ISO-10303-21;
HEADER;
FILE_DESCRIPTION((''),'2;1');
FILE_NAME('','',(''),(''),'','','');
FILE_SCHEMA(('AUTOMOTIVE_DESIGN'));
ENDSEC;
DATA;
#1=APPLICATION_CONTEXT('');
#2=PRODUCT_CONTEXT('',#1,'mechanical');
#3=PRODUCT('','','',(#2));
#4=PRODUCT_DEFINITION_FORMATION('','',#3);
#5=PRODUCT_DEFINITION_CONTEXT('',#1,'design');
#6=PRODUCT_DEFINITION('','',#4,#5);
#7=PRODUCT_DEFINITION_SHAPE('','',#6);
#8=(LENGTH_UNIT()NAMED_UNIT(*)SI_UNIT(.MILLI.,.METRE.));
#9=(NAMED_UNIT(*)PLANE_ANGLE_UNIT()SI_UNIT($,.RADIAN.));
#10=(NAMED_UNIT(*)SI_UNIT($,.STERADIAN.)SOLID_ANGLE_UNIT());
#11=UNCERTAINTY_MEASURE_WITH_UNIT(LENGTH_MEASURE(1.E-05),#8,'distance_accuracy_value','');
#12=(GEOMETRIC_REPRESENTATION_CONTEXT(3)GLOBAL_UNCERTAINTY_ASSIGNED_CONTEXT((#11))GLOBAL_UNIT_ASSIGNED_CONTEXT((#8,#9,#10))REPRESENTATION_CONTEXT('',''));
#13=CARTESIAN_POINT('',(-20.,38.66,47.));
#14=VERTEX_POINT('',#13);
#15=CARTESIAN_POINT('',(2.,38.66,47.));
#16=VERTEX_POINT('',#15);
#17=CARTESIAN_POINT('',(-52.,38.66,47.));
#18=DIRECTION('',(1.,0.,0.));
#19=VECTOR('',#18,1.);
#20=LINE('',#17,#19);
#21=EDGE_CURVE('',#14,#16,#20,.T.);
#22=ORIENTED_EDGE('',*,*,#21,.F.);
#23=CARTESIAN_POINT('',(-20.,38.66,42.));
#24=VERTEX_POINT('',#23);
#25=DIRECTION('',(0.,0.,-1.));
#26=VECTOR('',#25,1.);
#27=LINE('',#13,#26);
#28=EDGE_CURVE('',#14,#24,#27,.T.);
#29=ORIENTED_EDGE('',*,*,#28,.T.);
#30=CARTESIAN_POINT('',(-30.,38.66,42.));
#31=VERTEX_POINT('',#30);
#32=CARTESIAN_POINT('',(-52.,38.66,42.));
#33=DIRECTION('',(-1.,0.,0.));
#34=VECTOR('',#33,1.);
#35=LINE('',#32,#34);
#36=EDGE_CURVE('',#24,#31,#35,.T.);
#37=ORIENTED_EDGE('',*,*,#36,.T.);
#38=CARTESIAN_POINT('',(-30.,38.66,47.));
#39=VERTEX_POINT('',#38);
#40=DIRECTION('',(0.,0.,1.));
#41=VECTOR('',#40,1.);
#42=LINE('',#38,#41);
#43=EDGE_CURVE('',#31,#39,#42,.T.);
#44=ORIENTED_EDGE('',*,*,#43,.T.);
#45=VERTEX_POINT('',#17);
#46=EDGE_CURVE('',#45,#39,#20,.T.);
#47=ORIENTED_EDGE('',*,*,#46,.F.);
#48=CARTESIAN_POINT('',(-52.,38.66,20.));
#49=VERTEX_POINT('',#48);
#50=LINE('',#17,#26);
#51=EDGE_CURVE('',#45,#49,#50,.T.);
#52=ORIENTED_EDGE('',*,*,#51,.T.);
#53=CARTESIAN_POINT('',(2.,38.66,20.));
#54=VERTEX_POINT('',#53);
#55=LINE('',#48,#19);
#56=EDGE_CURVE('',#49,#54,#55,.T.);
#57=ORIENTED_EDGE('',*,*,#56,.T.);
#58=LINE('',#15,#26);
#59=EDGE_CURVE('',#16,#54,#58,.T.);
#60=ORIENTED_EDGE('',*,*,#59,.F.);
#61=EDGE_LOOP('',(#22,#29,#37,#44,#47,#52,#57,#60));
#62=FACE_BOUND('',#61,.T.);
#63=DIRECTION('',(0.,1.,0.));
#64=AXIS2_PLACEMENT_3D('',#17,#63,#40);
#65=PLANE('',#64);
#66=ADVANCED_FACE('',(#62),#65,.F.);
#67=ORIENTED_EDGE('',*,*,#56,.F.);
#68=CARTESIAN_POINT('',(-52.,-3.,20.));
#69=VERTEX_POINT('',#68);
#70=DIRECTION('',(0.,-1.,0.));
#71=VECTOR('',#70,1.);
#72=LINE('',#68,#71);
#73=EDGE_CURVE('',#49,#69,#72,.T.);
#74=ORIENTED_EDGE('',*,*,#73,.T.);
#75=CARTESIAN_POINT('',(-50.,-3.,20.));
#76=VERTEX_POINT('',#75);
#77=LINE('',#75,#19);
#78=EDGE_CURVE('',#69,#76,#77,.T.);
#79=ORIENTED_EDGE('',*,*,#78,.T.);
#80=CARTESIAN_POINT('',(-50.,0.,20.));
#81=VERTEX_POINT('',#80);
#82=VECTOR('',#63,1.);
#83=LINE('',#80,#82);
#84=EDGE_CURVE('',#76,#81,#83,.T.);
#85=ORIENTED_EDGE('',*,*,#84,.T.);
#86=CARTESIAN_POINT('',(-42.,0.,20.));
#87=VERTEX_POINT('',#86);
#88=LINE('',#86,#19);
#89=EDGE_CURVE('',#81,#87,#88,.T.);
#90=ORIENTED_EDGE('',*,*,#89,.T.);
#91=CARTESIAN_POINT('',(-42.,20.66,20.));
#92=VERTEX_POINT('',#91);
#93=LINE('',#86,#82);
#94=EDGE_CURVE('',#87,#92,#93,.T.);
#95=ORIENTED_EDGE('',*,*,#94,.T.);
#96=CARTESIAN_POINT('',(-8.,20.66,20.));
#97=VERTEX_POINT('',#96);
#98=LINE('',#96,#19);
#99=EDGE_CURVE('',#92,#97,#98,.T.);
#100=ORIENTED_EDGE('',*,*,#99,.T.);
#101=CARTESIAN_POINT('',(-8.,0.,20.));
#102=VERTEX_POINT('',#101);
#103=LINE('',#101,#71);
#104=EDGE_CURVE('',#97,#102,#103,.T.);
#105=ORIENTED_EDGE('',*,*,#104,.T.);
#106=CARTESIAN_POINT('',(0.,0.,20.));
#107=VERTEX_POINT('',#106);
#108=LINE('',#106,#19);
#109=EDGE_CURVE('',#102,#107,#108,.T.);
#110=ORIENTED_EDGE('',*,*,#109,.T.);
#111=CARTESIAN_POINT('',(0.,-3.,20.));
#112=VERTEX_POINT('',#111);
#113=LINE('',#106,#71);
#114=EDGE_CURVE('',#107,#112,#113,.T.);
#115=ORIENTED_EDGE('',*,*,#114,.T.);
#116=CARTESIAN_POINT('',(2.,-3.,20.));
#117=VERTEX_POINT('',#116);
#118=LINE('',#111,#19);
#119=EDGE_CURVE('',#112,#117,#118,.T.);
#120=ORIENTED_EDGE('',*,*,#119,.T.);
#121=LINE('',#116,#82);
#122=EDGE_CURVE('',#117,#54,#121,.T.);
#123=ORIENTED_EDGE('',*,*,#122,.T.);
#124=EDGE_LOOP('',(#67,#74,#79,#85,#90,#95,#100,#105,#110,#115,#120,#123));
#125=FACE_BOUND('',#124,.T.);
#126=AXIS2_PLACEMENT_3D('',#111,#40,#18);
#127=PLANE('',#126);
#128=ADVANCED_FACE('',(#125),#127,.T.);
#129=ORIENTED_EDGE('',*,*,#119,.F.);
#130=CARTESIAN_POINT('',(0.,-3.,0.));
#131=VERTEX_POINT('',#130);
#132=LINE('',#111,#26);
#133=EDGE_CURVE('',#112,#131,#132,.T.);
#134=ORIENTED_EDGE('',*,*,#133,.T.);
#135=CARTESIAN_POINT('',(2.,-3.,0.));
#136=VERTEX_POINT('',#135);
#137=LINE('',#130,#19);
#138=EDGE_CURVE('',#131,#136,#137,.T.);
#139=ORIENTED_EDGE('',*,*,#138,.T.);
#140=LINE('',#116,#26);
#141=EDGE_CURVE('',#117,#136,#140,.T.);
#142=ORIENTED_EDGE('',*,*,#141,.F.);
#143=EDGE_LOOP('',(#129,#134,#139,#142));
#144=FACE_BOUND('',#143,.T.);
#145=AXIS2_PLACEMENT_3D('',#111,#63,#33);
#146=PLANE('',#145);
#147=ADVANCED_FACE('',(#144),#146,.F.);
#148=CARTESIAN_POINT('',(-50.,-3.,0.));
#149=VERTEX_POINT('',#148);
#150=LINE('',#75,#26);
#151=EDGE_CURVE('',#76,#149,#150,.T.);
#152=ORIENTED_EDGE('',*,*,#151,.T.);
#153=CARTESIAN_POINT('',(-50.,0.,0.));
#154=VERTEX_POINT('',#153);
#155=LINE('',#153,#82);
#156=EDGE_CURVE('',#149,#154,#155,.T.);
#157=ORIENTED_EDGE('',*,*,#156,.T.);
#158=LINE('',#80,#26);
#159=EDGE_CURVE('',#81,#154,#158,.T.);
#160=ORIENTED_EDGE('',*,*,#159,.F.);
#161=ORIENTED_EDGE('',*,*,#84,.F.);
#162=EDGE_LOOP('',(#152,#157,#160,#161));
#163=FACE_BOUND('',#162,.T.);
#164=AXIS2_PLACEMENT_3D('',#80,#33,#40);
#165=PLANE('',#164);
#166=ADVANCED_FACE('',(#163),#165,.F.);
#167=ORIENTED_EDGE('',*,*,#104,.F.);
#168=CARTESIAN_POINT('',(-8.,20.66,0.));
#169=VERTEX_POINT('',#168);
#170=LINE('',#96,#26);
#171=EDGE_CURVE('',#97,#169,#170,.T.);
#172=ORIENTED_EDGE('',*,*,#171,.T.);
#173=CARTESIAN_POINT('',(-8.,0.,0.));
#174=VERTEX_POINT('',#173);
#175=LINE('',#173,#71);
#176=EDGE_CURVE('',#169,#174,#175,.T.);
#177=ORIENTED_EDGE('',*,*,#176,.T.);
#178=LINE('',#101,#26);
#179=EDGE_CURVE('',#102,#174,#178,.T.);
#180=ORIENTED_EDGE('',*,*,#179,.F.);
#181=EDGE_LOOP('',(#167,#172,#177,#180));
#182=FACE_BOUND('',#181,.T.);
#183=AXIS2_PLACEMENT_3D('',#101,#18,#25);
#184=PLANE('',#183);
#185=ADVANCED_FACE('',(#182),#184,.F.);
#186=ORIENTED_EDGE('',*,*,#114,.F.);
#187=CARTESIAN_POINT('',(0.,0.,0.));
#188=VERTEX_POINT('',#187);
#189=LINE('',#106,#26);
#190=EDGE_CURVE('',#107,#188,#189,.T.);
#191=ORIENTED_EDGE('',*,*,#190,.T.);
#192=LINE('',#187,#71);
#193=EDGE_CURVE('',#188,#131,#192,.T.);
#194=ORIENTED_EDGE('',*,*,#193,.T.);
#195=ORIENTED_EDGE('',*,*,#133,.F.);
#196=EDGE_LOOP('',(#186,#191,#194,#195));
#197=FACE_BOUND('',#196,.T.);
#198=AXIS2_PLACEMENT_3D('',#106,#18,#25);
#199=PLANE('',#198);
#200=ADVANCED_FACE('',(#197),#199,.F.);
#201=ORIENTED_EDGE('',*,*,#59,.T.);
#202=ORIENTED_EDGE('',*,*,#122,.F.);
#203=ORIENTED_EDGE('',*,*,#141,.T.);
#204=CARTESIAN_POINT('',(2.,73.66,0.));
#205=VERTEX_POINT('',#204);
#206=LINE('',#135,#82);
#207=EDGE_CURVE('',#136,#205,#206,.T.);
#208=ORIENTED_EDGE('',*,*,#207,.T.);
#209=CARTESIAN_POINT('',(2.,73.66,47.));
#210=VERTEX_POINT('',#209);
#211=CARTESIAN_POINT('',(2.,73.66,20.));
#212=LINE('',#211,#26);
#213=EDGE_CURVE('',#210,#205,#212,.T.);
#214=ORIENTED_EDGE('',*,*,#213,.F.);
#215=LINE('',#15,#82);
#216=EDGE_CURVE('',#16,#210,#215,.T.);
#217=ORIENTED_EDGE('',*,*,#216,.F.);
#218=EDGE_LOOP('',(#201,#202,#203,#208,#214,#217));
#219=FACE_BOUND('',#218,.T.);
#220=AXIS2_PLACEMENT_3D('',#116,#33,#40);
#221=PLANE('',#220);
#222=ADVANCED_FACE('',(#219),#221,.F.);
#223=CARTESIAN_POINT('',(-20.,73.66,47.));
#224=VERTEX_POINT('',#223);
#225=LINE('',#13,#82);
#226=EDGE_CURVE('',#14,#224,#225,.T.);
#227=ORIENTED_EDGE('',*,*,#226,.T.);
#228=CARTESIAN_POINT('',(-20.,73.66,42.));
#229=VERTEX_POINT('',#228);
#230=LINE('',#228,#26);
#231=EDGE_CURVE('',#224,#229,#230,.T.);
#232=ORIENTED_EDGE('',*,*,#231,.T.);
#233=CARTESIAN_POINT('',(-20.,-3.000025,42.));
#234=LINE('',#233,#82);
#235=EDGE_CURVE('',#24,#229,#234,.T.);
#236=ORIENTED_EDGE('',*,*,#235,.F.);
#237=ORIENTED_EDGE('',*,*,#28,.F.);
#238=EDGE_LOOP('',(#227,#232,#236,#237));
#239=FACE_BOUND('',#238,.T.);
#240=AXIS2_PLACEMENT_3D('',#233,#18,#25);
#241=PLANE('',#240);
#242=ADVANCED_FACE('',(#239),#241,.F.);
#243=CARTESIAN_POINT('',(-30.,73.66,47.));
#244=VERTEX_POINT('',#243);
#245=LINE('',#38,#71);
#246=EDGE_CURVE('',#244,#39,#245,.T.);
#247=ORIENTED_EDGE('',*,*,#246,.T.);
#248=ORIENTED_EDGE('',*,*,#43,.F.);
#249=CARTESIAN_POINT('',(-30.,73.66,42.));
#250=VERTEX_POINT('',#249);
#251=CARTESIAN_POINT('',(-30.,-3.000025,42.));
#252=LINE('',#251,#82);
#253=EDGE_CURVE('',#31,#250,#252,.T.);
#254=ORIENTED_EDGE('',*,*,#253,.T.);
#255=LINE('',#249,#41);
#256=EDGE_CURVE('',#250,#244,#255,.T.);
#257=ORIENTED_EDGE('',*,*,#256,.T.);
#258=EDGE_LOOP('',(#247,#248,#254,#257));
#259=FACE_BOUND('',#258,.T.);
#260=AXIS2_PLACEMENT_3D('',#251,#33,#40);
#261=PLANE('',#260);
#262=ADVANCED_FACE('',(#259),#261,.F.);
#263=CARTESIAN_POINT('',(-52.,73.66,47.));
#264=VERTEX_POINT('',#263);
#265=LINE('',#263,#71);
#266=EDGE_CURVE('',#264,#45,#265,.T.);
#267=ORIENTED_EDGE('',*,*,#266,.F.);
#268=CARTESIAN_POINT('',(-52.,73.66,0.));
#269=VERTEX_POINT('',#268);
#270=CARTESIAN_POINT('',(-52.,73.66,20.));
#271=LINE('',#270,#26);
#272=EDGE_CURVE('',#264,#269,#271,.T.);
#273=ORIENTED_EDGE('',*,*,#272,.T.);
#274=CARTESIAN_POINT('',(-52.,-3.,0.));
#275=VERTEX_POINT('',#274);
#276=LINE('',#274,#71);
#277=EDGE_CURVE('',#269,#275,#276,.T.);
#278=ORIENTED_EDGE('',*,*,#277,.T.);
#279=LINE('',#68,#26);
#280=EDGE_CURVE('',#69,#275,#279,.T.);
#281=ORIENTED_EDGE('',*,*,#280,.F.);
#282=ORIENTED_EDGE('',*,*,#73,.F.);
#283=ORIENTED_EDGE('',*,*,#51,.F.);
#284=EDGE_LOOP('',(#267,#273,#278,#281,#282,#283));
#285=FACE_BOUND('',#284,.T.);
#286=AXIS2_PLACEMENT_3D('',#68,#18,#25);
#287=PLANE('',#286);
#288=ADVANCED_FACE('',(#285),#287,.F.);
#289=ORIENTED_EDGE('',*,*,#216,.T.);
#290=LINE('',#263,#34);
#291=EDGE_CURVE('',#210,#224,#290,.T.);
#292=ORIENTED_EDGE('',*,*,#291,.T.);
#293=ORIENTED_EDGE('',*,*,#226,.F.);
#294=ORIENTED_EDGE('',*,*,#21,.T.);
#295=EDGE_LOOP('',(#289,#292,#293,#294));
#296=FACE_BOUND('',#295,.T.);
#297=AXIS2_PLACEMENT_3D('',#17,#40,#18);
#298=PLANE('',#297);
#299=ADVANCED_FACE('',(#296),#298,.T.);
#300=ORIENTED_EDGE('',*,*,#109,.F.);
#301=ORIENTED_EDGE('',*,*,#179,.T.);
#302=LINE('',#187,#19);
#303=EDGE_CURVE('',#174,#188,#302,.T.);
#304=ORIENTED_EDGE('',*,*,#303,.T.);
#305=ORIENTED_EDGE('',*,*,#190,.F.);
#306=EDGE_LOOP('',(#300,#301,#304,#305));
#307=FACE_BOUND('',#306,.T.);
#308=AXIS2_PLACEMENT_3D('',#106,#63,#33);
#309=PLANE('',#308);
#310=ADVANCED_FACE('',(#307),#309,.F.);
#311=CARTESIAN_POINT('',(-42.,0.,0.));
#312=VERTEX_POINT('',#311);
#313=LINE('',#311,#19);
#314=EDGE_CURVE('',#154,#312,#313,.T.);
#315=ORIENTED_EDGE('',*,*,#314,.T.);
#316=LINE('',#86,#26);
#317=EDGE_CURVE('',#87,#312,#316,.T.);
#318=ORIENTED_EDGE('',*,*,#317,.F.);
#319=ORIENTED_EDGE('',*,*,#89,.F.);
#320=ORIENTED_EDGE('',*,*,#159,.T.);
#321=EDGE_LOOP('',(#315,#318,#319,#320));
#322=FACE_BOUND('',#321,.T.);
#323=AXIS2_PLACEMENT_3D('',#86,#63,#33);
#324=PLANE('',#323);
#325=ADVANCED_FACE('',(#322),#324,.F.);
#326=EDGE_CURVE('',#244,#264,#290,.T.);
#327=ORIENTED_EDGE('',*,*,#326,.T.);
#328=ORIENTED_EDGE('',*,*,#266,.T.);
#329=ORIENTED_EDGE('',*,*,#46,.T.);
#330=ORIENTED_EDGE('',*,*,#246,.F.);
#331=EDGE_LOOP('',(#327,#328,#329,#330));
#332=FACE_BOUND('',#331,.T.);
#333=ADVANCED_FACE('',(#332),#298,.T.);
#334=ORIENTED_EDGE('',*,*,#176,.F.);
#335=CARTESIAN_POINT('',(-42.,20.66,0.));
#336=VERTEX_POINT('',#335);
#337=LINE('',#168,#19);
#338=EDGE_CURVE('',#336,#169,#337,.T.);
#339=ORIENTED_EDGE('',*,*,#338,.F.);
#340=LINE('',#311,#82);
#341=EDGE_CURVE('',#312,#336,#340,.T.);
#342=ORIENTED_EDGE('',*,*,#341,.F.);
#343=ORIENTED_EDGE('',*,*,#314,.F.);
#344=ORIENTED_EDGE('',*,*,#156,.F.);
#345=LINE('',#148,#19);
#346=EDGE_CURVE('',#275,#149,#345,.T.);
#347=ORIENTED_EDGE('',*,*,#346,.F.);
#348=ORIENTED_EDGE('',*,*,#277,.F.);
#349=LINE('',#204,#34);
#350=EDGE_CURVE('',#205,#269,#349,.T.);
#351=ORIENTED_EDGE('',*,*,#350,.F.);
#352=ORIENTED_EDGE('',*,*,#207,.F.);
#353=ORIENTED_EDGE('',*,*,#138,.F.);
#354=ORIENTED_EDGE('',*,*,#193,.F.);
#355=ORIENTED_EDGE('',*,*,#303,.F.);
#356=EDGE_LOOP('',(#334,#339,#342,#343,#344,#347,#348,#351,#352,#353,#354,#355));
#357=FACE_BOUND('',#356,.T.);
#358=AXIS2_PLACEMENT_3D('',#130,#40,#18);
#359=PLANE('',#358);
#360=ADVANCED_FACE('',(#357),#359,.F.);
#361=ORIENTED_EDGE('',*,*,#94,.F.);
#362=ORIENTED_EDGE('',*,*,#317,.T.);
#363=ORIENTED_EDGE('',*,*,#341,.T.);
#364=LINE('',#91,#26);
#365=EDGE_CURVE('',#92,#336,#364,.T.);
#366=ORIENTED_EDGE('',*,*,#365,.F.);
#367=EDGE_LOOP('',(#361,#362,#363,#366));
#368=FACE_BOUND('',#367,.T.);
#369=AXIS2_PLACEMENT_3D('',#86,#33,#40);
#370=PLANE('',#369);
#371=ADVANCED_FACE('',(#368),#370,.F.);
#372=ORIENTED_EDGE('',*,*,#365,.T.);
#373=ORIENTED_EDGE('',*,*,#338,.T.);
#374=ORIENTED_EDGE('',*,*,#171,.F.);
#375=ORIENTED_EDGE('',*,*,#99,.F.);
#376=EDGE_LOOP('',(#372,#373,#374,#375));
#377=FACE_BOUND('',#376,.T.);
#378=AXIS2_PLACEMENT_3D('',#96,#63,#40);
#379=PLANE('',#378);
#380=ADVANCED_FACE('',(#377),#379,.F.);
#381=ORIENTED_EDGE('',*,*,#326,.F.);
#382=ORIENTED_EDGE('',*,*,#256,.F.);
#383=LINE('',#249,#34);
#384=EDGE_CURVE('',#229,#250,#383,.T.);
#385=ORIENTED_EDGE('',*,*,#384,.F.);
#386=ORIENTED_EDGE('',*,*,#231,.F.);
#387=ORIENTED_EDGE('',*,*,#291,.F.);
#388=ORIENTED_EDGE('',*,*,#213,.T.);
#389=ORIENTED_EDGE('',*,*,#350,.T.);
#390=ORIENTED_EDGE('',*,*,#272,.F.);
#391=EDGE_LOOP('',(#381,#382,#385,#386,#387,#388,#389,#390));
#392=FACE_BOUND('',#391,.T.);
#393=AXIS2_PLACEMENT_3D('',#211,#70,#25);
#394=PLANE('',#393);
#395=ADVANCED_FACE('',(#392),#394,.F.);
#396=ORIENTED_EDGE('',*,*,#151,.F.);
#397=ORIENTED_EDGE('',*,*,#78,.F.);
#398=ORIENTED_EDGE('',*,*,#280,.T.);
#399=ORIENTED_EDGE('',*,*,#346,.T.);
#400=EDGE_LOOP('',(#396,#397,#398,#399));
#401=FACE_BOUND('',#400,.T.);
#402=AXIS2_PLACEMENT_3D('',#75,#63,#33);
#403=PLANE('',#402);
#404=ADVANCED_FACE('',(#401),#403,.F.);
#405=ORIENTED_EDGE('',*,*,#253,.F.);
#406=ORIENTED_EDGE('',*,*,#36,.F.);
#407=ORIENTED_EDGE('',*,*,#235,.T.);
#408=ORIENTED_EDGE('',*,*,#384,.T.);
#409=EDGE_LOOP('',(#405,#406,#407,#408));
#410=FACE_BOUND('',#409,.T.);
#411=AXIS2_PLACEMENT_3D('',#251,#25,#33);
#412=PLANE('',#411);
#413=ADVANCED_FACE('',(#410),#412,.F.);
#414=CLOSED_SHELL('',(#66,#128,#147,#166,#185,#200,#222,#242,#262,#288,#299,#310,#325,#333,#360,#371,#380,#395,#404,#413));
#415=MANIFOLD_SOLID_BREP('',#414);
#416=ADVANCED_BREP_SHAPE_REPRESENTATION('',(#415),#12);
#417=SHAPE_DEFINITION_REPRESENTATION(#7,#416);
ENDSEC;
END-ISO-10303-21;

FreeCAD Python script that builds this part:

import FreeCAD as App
import Part
import Sketcher

doc = App.newDocument("Part")
body = doc.addObject("PartDesign::Body", "Body")

sketch1 = body.newObject("Sketcher::SketchObject", "Sketch")
sketch1.AttachmentSupport = (doc.getObject("XY_Plane"), [""])
sketch1.MapMode = "FlatFace"
sketch1.addGeometry(Part.LineSegment(App.Vector(-8, 0, 0), App.Vector(0, 0, 0)), False)
sketch1.addGeometry(Part.LineSegment(App.Vector(0, 0, 0), App.Vector(0, -3, 0)), False)
sketch1.addGeometry(Part.LineSegment(App.Vector(0, -3, 0), App.Vector(2, -3, 0)), False)
sketch1.addGeometry(Part.LineSegment(App.Vector(2, -3, 0), App.Vector(2, 73.66, 0)), False)
sketch1.addGeometry(Part.LineSegment(App.Vector(2, 73.66, 0), App.Vector(-52, 73.66, 0)), False)
sketch1.addGeometry(Part.LineSegment(App.Vector(-52, 73.66, 0), App.Vector(-52, -3, 0)), False)
sketch1.addGeometry(Part.LineSegment(App.Vector(-52, -3, 0), App.Vector(-50, -3, 0)), False)
sketch1.addGeometry(Part.LineSegment(App.Vector(-50, -3, 0), App.Vector(-50, 0, 0)), False)
sketch1.addGeometry(Part.LineSegment(App.Vector(-50, 0, 0), App.Vector(-42, 0, 0)), False)
sketch1.addGeometry(Part.LineSegment(App.Vector(-42, 0, 0), App.Vector(-42, 20.66, 0)), False)
sketch1.addGeometry(Part.LineSegment(App.Vector(-42, 20.66, 0), App.Vector(-8, 20.66, 0)), False)
sketch1.addGeometry(Part.LineSegment(App.Vector(-8, 20.66, 0), App.Vector(-8, 0, 0)), False)
sketch1.addConstraint(Sketcher.Constraint("Coincident", 0, 2, 1, 1))
sketch1.addConstraint(Sketcher.Constraint("Coincident", 1, 2, 2, 1))
sketch1.addConstraint(Sketcher.Constraint("Coincident", 2, 2, 3, 1))
sketch1.addConstraint(Sketcher.Constraint("Coincident", 3, 2, 4, 1))
sketch1.addConstraint(Sketcher.Constraint("Coincident", 4, 2, 5, 1))
sketch1.addConstraint(Sketcher.Constraint("Coincident", 5, 2, 6, 1))
sketch1.addConstraint(Sketcher.Constraint("Coincident", 6, 2, 7, 1))
sketch1.addConstraint(Sketcher.Constraint("Coincident", 7, 2, 8, 1))
sketch1.addConstraint(Sketcher.Constraint("Coincident", 8, 2, 9, 1))
sketch1.addConstraint(Sketcher.Constraint("Coincident", 9, 2, 10, 1))
sketch1.addConstraint(Sketcher.Constraint("Coincident", 10, 2, 11, 1))
sketch1.addConstraint(Sketcher.Constraint("Coincident", 11, 2, 0, 1))
sketch1.addConstraint(Sketcher.Constraint("Horizontal", 0))
sketch1.addConstraint(Sketcher.Constraint("Vertical", 1))
sketch1.addConstraint(Sketcher.Constraint("Horizontal", 2))
sketch1.addConstraint(Sketcher.Constraint("Vertical", 3))
sketch1.addConstraint(Sketcher.Constraint("Horizontal", 4))
sketch1.addConstraint(Sketcher.Constraint("Vertical", 5))
sketch1.addConstraint(Sketcher.Constraint("Horizontal", 6))
sketch1.addConstraint(Sketcher.Constraint("Vertical", 7))
sketch1.addConstraint(Sketcher.Constraint("Horizontal", 8))
sketch1.addConstraint(Sketcher.Constraint("Vertical", 9))
sketch1.addConstraint(Sketcher.Constraint("Horizontal", 10))
sketch1.addConstraint(Sketcher.Constraint("Vertical", 11))
sketch1.addConstraint(Sketcher.Constraint("Coincident", 0, 2, -1, 1))
sketch1.addConstraint(Sketcher.Constraint("PointOnObject", 7, 2, -1))
sketch1.addConstraint(Sketcher.Constraint("Horizontal", 2, 2, 5, 2))
sketch1.addConstraint(Sketcher.Constraint("Equal", 2, 6))
sketch1.addConstraint(Sketcher.Constraint("Equal", 0, 8))
sketch1.addConstraint(Sketcher.Constraint("DistanceX", 0, 1, 0, 2, 8.0))
sketch1.addConstraint(Sketcher.Constraint("DistanceX", 2, 1, 2, 2, 2.0))
sketch1.addConstraint(Sketcher.Constraint("DistanceX", 4, 2, 4, 1, 54.0))
sketch1.addConstraint(Sketcher.Constraint("DistanceY", 1, 2, 1, 1, 3.0))
sketch1.addConstraint(Sketcher.Constraint("DistanceY", 3, 1, 3, 2, 76.66))
sketch1.addConstraint(Sketcher.Constraint("DistanceY", 9, 1, 9, 2, 20.66))
pad1 = body.newObject("PartDesign::Pad", "Pad")
pad1.Profile = sketch1
pad1.Length = 20

sketch2 = body.newObject("Sketcher::SketchObject", "Sketch001")
sketch2.AttachmentSupport = (doc.getObject("XY_Plane"), [""])
sketch2.MapMode = "FlatFace"
sketch2.AttachmentOffset = App.Placement(App.Vector(0, 0, 20), App.Rotation())
sketch2.addGeometry(Part.LineSegment(App.Vector(-52, 73.66, 0), App.Vector(-52, 38.66, 0)), False)
sketch2.addGeometry(Part.LineSegment(App.Vector(-52, 38.66, 0), App.Vector(2, 38.66, 0)), False)
sketch2.addGeometry(Part.LineSegment(App.Vector(2, 38.66, 0), App.Vector(2, 73.66, 0)), False)
sketch2.addGeometry(Part.LineSegment(App.Vector(2, 73.66, 0), App.Vector(-52, 73.66, 0)), False)
sketch2.addConstraint(Sketcher.Constraint("Coincident", 0, 2, 1, 1))
sketch2.addConstraint(Sketcher.Constraint("Coincident", 1, 2, 2, 1))
sketch2.addConstraint(Sketcher.Constraint("Coincident", 2, 2, 3, 1))
sketch2.addConstraint(Sketcher.Constraint("Coincident", 3, 2, 0, 1))
sketch2.addConstraint(Sketcher.Constraint("Vertical", 0))
sketch2.addConstraint(Sketcher.Constraint("Horizontal", 1))
sketch2.addConstraint(Sketcher.Constraint("Vertical", 2))
sketch2.addConstraint(Sketcher.Constraint("Horizontal", 3))
sketch2.addConstraint(Sketcher.Constraint("DistanceX", 1, 1, 1, 2, 54.0))
sketch2.addConstraint(Sketcher.Constraint("DistanceY", 0, 2, 0, 1, 35.0))
sketch2.addConstraint(Sketcher.Constraint("DistanceX", 0, 2, -1, 1, 52.0))
sketch2.addConstraint(Sketcher.Constraint("DistanceY", -1, 1, 0, 2, 38.66))
pad2 = body.newObject("PartDesign::Pad", "Pad001")
pad2.Profile = sketch2
pad2.Length = 27

sketch3 = body.newObject("Sketcher::SketchObject", "Sketch002")
sketch3.AttachmentSupport = (doc.getObject("XZ_Plane"), [""])
sketch3.MapMode = "FlatFace"
sketch3.AttachmentOffset = App.Placement(App.Vector(0, 0, -73.66), App.Rotation())
sketch3.addGeometry(Part.LineSegment(App.Vector(-30, 42, 0), App.Vector(-30, 47, 0)), False)
sketch3.addGeometry(Part.LineSegment(App.Vector(-30, 47, 0), App.Vector(-20, 47, 0)), False)
sketch3.addGeometry(Part.LineSegment(App.Vector(-20, 47, 0), App.Vector(-20, 42, 0)), False)
sketch3.addGeometry(Part.LineSegment(App.Vector(-20, 42, 0), App.Vector(-30, 42, 0)), False)
sketch3.addConstraint(Sketcher.Constraint("Coincident", 0, 2, 1, 1))
sketch3.addConstraint(Sketcher.Constraint("Coincident", 1, 2, 2, 1))
sketch3.addConstraint(Sketcher.Constraint("Coincident", 2, 2, 3, 1))
sketch3.addConstraint(Sketcher.Constraint("Coincident", 3, 2, 0, 1))
sketch3.addConstraint(Sketcher.Constraint("Vertical", 0))
sketch3.addConstraint(Sketcher.Constraint("Horizontal", 1))
sketch3.addConstraint(Sketcher.Constraint("Vertical", 2))
sketch3.addConstraint(Sketcher.Constraint("Horizontal", 3))
sketch3.addConstraint(Sketcher.Constraint("DistanceX", 1, 1, 1, 2, 10.0))
sketch3.addConstraint(Sketcher.Constraint("DistanceY", 0, 1, 0, 2, 5.0))
sketch3.addConstraint(Sketcher.Constraint("DistanceX", 0, 2, -1, 1, 30.0))
sketch3.addConstraint(Sketcher.Constraint("DistanceY", -1, 1, 0, 2, 47.0))
pocket1 = body.newObject("PartDesign::Pocket", "Pocket")
pocket1.Profile = sketch3
pocket1.Type = "ThroughAll"
pocket1.Reversed = True

doc.recompute()
